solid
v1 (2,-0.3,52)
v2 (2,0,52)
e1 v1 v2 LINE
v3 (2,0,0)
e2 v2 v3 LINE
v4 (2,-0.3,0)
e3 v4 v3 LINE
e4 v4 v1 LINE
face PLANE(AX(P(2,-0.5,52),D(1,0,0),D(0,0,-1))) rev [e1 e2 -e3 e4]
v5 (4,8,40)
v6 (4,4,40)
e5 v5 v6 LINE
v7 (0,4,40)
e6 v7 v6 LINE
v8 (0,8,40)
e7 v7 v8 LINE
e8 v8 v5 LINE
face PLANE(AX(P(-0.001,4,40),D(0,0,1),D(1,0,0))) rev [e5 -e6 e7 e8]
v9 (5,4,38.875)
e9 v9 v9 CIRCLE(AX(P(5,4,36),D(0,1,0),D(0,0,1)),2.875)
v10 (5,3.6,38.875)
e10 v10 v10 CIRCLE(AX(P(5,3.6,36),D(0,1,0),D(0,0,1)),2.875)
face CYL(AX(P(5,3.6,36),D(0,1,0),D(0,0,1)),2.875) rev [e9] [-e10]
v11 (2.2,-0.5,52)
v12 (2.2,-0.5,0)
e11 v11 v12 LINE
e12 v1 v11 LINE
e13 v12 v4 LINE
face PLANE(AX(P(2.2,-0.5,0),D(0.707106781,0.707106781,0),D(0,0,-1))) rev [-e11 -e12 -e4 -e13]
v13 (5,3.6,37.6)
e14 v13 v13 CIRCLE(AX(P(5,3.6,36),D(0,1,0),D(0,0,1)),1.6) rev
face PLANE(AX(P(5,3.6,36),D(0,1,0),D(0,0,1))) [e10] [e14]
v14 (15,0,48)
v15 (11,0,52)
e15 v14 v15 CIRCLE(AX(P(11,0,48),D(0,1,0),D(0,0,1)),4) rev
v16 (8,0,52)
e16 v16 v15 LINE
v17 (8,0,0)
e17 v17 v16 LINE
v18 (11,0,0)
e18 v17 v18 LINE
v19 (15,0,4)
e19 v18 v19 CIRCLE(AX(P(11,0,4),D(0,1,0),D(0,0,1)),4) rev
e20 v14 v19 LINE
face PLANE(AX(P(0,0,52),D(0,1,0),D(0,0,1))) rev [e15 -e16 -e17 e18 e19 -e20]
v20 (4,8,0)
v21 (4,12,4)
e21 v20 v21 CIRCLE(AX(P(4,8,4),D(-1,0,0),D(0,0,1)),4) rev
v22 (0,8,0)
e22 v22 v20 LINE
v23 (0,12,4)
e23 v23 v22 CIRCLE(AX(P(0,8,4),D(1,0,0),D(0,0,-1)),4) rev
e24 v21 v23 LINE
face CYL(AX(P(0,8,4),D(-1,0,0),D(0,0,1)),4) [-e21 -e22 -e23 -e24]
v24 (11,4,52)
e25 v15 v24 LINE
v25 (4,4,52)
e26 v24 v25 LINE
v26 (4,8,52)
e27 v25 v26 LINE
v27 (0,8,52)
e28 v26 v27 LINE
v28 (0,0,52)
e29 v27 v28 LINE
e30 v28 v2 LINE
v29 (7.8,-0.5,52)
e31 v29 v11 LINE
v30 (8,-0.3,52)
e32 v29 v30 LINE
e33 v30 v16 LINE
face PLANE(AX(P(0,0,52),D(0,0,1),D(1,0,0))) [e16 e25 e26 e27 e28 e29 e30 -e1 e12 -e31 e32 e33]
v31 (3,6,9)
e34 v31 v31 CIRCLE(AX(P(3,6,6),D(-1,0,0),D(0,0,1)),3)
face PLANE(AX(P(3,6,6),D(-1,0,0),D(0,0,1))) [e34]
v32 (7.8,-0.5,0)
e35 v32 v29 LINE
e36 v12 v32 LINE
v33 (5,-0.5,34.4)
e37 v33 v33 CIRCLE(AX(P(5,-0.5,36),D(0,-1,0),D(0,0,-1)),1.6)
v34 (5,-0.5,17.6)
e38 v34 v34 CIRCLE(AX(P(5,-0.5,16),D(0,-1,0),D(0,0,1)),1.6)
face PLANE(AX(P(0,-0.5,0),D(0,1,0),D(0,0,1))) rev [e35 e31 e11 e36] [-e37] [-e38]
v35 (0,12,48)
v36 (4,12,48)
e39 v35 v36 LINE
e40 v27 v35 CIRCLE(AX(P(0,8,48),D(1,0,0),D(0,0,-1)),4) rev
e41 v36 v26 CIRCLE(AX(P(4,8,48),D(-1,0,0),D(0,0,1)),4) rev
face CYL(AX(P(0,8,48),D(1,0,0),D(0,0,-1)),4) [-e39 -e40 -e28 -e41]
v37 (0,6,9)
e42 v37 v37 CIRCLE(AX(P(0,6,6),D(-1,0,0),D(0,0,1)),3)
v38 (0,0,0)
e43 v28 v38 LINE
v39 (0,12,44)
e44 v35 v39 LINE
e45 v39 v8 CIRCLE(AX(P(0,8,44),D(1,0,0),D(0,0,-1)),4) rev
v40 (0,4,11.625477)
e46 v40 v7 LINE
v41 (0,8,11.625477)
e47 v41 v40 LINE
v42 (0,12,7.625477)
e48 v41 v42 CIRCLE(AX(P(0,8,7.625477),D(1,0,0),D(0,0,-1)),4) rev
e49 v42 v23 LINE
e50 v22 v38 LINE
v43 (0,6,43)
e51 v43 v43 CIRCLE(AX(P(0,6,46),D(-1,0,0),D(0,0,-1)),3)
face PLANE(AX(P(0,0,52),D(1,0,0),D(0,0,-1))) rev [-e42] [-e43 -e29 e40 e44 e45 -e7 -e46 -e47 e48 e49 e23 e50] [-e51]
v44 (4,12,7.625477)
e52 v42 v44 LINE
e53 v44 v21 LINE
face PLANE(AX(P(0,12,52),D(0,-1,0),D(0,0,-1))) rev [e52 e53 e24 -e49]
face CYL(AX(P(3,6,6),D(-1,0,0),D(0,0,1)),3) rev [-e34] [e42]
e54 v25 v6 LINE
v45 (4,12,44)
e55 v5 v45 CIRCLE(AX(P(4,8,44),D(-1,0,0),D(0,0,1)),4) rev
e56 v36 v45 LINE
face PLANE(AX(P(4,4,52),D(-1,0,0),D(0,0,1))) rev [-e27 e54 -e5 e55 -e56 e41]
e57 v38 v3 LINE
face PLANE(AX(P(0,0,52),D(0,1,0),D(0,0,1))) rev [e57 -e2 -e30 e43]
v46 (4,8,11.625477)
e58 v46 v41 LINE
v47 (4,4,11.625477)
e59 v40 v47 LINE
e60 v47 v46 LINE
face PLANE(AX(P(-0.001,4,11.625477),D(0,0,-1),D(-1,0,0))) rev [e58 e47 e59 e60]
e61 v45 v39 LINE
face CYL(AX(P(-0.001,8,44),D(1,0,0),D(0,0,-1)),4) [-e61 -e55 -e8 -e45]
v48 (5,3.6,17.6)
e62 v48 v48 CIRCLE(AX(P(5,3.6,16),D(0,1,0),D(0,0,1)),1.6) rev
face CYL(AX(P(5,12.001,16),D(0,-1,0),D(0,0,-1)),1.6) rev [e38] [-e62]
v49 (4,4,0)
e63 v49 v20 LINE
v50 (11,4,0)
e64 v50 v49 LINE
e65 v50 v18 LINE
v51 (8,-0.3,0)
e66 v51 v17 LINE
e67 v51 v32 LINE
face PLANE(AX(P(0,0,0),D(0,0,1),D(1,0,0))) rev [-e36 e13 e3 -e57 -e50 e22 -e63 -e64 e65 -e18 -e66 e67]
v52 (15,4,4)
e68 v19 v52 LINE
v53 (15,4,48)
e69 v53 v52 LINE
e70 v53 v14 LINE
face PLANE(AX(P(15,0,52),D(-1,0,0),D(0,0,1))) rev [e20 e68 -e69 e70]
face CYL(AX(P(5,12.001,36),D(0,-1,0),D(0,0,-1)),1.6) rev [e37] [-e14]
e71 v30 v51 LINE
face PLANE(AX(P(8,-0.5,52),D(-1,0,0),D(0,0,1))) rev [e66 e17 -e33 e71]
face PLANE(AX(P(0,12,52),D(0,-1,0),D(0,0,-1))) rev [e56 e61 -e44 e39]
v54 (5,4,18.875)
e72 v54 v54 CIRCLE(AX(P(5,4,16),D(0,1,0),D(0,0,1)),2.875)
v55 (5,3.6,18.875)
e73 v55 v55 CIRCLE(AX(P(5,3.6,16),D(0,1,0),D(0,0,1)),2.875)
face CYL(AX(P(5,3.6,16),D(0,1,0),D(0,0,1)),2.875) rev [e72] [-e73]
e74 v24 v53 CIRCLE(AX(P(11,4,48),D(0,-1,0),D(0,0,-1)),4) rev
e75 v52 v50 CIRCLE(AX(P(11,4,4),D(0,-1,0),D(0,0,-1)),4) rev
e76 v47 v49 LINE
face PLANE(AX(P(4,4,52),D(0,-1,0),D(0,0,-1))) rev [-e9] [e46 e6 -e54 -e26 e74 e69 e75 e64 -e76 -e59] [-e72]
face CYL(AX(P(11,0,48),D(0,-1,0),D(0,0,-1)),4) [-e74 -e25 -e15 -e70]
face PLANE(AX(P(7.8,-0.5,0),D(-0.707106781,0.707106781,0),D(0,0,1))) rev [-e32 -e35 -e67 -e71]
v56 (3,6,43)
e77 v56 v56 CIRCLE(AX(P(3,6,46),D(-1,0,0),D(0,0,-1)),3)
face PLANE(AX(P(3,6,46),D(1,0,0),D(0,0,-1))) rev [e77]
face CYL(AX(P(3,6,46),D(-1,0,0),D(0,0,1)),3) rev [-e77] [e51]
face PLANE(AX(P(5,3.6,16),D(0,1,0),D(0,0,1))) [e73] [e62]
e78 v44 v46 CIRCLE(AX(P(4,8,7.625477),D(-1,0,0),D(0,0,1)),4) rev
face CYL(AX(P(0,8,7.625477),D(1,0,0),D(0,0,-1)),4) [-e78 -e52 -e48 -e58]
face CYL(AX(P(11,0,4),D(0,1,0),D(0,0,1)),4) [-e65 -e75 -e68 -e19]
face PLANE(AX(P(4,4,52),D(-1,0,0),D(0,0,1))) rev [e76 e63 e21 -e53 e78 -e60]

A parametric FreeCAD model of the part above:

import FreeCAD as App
import Part
import Sketcher

V = App.Vector
Q = App.Units.Quantity


def edges_at(feature, points):
    """Names of the edges that pass closest to the given points."""
    edges = feature.Shape.Edges
    near = lambda p: min(range(len(edges)), key=lambda i: edges[i].distToShape(Part.Vertex(*p))[0])
    return sorted({f"Edge{near(p) + 1}" for p in points})


def add_polygon(sketch, points):
    """Adds a closed chain of lines whose ends are joined by coincident constraints."""
    first, n = sketch.GeometryCount, len(points)
    for a, b in zip(points, points[1:] + points[:1]):
        sketch.addGeometry(Part.LineSegment(App.Vector(*a, 0), App.Vector(*b, 0)), False)
    for i in range(n):
        sketch.addConstraint(Sketcher.Constraint("Coincident", first + i, 2, first + (i + 1) % n, 1))

doc = App.newDocument("Part")
body = doc.addObject("PartDesign::Body", "Body")

sketch1 = doc.addObject("Sketcher::SketchObject", "Sketch")
body.addObject(sketch1)
sketch1.AttachmentSupport = (doc.XY_Plane, [""])
sketch1.MapMode = "FlatFace"
add_polygon(sketch1, [(0, 12), (0, 0), (15, 0), (15, 4), (4, 4), (4, 12)])
sketch1.addConstraint([
    Sketcher.Constraint("Vertical", 0),
    Sketcher.Constraint("Horizontal", 1),
    Sketcher.Constraint("Vertical", 2),
    Sketcher.Constraint("Horizontal", 3),
    Sketcher.Constraint("Vertical", 4),
    Sketcher.Constraint("Horizontal", 5),
    Sketcher.Constraint("Coincident", 0, 2, -1, 1),
    Sketcher.Constraint("Equal", 5, 2),
    Sketcher.Constraint("DistanceX", 1, 1, 1, 2, Q("15 mm")),
    Sketcher.Constraint("DistanceX", 3, 2, 3, 1, Q("11 mm")),
    Sketcher.Constraint("DistanceY", 0, 2, 0, 1, Q("12 mm")),
])
pad1 = doc.addObject("PartDesign::Pad", "Pad")
body.addObject(pad1)
pad1.Profile = sketch1
pad1.Length = 52

sketch2 = doc.addObject("Sketcher::SketchObject", "Sketch001")
body.addObject(sketch2)
sketch2.AttachmentSupport = (doc.XZ_Plane, [""])
sketch2.MapMode = "FlatFace"
add_polygon(sketch2, [(2, 52), (2, 0), (8, 0), (8, 52)])
sketch2.addConstraint([
    Sketcher.Constraint("Vertical", 0),
    Sketcher.Constraint("Horizontal", 1),
    Sketcher.Constraint("Vertical", 2),
    Sketcher.Constraint("Horizontal", 3),
    Sketcher.Constraint("PointOnObject", 0, 2, -1),
    Sketcher.Constraint("DistanceX", 1, 1, 1, 2, Q("6 mm")),
    Sketcher.Constraint("DistanceY", 0, 2, 0, 1, Q("52 mm")),
    Sketcher.Constraint("DistanceX", -1, 1, 0, 2, Q("2 mm")),
])
pad2 = doc.addObject("PartDesign::Pad", "Pad001")
body.addObject(pad2)
pad2.Profile = sketch2
pad2.Length = 0.5
doc.recompute()

chamfer = doc.addObject("PartDesign::Chamfer", "Chamfer")
body.addObject(chamfer)
chamfer.Base = (pad2, edges_at(pad2, [(8, -0.5, 26), (2, -0.5, 26)]))
chamfer.Size = 0.2

sketch3 = doc.addObject("Sketcher::SketchObject", "Sketch002")
body.addObject(sketch3)
sketch3.AttachmentSupport = (doc.XZ_Plane, [""])
sketch3.MapMode = "FlatFace"
sketch3.AttachmentOffset = App.Placement(V(0, 0, 0.5), App.Rotation())
sketch3.addGeometry(Part.Circle(V(5, 36, 0), V(0, 0, 1), 1.6), False)
sketch3.addConstraint([
    Sketcher.Constraint("Diameter", 0, Q("3.2 mm")),
    Sketcher.Constraint("DistanceX", -1, 1, 0, 3, Q("5 mm")),
    Sketcher.Constraint("DistanceY", -1, 1, 0, 3, Q("36 mm")),
])
pocket1 = doc.addObject("PartDesign::Pocket", "Pocket")
body.addObject(pocket1)
pocket1.Profile = sketch3
pocket1.Length = 12.5

sketch4 = doc.addObject("Sketcher::SketchObject", "Sketch003")
body.addObject(sketch4)
sketch4.AttachmentSupport = (doc.XZ_Plane, [""])
sketch4.MapMode = "FlatFace"
sketch4.AttachmentOffset = App.Placement(V(0, 0, 0.5), App.Rotation())
sketch4.addGeometry(Part.Circle(V(5, 16, 0), V(0, 0, 1), 1.6), False)
sketch4.addConstraint([
    Sketcher.Constraint("Diameter", 0, Q("3.2 mm")),
    Sketcher.Constraint("DistanceX", -1, 1, 0, 3, Q("5 mm")),
    Sketcher.Constraint("DistanceY", -1, 1, 0, 3, Q("16 mm")),
])
pocket2 = doc.addObject("PartDesign::Pocket", "Pocket001")
body.addObject(pocket2)
pocket2.Profile = sketch4
pocket2.Length = 12.5

sketch5 = doc.addObject("Sketcher::SketchObject", "Sketch004")
body.addObject(sketch5)
sketch5.AttachmentSupport = (doc.XZ_Plane, [""])
sketch5.MapMode = "FlatFace"
sketch5.AttachmentOffset = App.Placement(V(0, 0, -4), App.Rotation())
sketch5.addGeometry([
    Part.Circle(V(5, 36, 0), V(0, 0, 1), 2.9),
    Part.Circle(V(5, 16, 0), V(0, 0, 1), 2.9),
], False)
sketch5.addConstraint([
    Sketcher.Constraint("Equal", 0, 1),
    Sketcher.Constraint("Vertical", 0, 3, 1, 3),
    Sketcher.Constraint("Diameter", 0, Q("5.75 mm")),
    Sketcher.Constraint("DistanceX", -1, 1, 0, 3, Q("5 mm")),
    Sketcher.Constraint("DistanceY", -1, 1, 0, 3, Q("36 mm")),
    Sketcher.Constraint("DistanceY", -1, 1, 1, 3, Q("16 mm")),
])
pocket3 = doc.addObject("PartDesign::Pocket", "Pocket002")
body.addObject(pocket3)
pocket3.Profile = sketch5
pocket3.Length = 0.4
pocket3.Reversed = True

sketch6 = doc.addObject("Sketcher::SketchObject", "Sketch005")
body.addObject(sketch6)
sketch6.AttachmentSupport = (doc.YZ_Plane, [""])
sketch6.MapMode = "FlatFace"
sketch6.addGeometry([
    Part.Circle(V(6, 6, 0), V(0, 0, 1), 3),
    Part.Circle(V(6, 46, 0), V(0, 0, 1), 3),
], False)
sketch6.addConstraint([
    Sketcher.Constraint("Equal", 0, 1),
    Sketcher.Constraint("Vertical", 0, 3, 1, 3),
    Sketcher.Constraint("Diameter", 0, Q("6 mm")),
    Sketcher.Constraint("DistanceX", -1, 1, 0, 3, Q("6 mm")),
    Sketcher.Constraint("DistanceY", -1, 1, 0, 3, Q("6 mm")),
    Sketcher.Constraint("DistanceY", -1, 1, 1, 3, Q("46 mm")),
])
pocket4 = doc.addObject("PartDesign::Pocket", "Pocket003")
body.addObject(pocket4)
pocket4.Profile = sketch6
pocket4.Length = 3
pocket4.Reversed = True

sketch7 = doc.addObject("Sketcher::SketchObject", "Sketch006")
body.addObject(sketch7)
sketch7.AttachmentSupport = (doc.YZ_Plane, [""])
sketch7.MapMode = "FlatFace"
sketch7.AttachmentOffset = App.Placement(V(0, 0, 4), App.Rotation())
add_polygon(sketch7, [(12, 40), (4, 40), (4, 12), (12, 12)])
sketch7.addConstraint([
    Sketcher.Constraint("Horizontal", 0),
    Sketcher.Constraint("Vertical", 1),
    Sketcher.Constraint("Horizontal", 2),
    Sketcher.Constraint("Vertical", 3),
    Sketcher.Constraint("DistanceX", 0, 2, 0, 1, Q("8 mm")),
    Sketcher.Constraint("DistanceX", -1, 1, 0, 2, Q("4 mm")),
    Sketcher.Constraint("DistanceY", -1, 1, 0, 2, Q("40 mm")),
    Sketcher.Constraint("DistanceY", 1, 2, 1, 1, Q("28.374523 mm")),
])
pocket5 = doc.addObject("PartDesign::Pocket", "Pocket004")
body.addObject(pocket5)
pocket5.Profile = sketch7
pocket5.Type = "UpToFirst"
doc.recompute()

fillet = doc.addObject("PartDesign::Fillet", "Fillet")
body.addObject(fillet)
fillet.Base = (pocket5, edges_at(pocket5, [
    (2, 12, 11.625),
    (2, 12, 40),
    (2, 12, 52),
    (2, 12, 0),
]))
fillet.Radius = 4
doc.recompute()

fillet2 = doc.addObject("PartDesign::Fillet", "Fillet001")
body.addObject(fillet2)
fillet2.Base = (fillet, edges_at(fillet, [(15, 2, 0), (15, 2, 52)]))
fillet2.Radius = 4

doc.recompute()
